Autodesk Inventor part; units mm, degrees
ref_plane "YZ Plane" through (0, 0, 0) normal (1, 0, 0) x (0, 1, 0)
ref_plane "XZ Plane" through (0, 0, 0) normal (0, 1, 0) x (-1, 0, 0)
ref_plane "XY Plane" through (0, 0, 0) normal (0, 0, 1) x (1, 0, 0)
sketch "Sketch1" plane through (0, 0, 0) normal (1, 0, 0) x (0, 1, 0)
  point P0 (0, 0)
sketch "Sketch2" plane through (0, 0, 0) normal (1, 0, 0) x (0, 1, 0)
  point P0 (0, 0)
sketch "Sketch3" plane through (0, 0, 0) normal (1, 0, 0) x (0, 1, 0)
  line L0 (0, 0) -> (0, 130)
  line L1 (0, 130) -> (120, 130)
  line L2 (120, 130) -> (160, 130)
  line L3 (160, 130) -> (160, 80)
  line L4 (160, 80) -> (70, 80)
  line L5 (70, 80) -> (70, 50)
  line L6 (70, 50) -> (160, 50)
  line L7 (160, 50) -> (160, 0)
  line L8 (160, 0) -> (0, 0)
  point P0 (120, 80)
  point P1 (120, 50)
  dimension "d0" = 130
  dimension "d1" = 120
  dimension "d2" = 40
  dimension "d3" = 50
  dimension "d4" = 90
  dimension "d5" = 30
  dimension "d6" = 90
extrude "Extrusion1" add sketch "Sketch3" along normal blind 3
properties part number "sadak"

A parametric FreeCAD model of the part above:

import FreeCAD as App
import Part
import Sketcher
from FreeCAD import Vector

doc = App.newDocument("Part")
body = doc.addObject("PartDesign::Body", "Body")

sketch1 = doc.addObject("Sketcher::SketchObject", "Sketch")
body.addObject(sketch1)
sketch1.AttachmentSupport = (doc.YZ_Plane, [""])
sketch1.MapMode = "FlatFace"
sketch1.addGeometry([
    Part.LineSegment(Vector(0, 130, 0), Vector(0, 0, 0)),
    Part.LineSegment(Vector(0, 0, 0), Vector(160, 0, 0)),
    Part.LineSegment(Vector(160, 0, 0), Vector(160, 50, 0)),
    Part.LineSegment(Vector(160, 50, 0), Vector(70, 50, 0)),
    Part.LineSegment(Vector(70, 50, 0), Vector(70, 80, 0)),
    Part.LineSegment(Vector(70, 80, 0), Vector(160, 80, 0)),
    Part.LineSegment(Vector(160, 80, 0), Vector(160, 130, 0)),
    Part.LineSegment(Vector(160, 130, 0), Vector(0, 130, 0)),
], False)
sketch1.addConstraint([
    Sketcher.Constraint("Coincident", 0, 2, 1, 1),
    Sketcher.Constraint("Coincident", 1, 2, 2, 1),
    Sketcher.Constraint("Coincident", 2, 2, 3, 1),
    Sketcher.Constraint("Coincident", 3, 2, 4, 1),
    Sketcher.Constraint("Coincident", 4, 2, 5, 1),
    Sketcher.Constraint("Coincident", 5, 2, 6, 1),
    Sketcher.Constraint("Coincident", 6, 2, 7, 1),
    Sketcher.Constraint("Coincident", 7, 2, 0, 1),
    Sketcher.Constraint("Vertical", 0),
    Sketcher.Constraint("Horizontal", 1),
    Sketcher.Constraint("Vertical", 2),
    Sketcher.Constraint("Horizontal", 3),
    Sketcher.Constraint("Vertical", 4),
    Sketcher.Constraint("Horizontal", 5),
    Sketcher.Constraint("Vertical", 6),
    Sketcher.Constraint("Horizontal", 7),
    Sketcher.Constraint("Coincident", 0, 2, -1, 1),
    Sketcher.Constraint("Vertical", 2, 2, 5, 2),
    Sketcher.Constraint("Equal", 2, 6),
    Sketcher.Constraint("DistanceX", 3, 2, 3, 1, 90.0),
    Sketcher.Constraint("DistanceY", 0, 2, 0, 1, 130.0),
    Sketcher.Constraint("DistanceY", 2, 1, 2, 2, 50.0),
    Sketcher.Constraint("DistanceX", 1, 1, 1, 2, 160.0),
])
pad1 = doc.addObject("PartDesign::Pad", "Pad")
body.addObject(pad1)
pad1.Profile = sketch1
pad1.Length = 3

doc.recompute()
